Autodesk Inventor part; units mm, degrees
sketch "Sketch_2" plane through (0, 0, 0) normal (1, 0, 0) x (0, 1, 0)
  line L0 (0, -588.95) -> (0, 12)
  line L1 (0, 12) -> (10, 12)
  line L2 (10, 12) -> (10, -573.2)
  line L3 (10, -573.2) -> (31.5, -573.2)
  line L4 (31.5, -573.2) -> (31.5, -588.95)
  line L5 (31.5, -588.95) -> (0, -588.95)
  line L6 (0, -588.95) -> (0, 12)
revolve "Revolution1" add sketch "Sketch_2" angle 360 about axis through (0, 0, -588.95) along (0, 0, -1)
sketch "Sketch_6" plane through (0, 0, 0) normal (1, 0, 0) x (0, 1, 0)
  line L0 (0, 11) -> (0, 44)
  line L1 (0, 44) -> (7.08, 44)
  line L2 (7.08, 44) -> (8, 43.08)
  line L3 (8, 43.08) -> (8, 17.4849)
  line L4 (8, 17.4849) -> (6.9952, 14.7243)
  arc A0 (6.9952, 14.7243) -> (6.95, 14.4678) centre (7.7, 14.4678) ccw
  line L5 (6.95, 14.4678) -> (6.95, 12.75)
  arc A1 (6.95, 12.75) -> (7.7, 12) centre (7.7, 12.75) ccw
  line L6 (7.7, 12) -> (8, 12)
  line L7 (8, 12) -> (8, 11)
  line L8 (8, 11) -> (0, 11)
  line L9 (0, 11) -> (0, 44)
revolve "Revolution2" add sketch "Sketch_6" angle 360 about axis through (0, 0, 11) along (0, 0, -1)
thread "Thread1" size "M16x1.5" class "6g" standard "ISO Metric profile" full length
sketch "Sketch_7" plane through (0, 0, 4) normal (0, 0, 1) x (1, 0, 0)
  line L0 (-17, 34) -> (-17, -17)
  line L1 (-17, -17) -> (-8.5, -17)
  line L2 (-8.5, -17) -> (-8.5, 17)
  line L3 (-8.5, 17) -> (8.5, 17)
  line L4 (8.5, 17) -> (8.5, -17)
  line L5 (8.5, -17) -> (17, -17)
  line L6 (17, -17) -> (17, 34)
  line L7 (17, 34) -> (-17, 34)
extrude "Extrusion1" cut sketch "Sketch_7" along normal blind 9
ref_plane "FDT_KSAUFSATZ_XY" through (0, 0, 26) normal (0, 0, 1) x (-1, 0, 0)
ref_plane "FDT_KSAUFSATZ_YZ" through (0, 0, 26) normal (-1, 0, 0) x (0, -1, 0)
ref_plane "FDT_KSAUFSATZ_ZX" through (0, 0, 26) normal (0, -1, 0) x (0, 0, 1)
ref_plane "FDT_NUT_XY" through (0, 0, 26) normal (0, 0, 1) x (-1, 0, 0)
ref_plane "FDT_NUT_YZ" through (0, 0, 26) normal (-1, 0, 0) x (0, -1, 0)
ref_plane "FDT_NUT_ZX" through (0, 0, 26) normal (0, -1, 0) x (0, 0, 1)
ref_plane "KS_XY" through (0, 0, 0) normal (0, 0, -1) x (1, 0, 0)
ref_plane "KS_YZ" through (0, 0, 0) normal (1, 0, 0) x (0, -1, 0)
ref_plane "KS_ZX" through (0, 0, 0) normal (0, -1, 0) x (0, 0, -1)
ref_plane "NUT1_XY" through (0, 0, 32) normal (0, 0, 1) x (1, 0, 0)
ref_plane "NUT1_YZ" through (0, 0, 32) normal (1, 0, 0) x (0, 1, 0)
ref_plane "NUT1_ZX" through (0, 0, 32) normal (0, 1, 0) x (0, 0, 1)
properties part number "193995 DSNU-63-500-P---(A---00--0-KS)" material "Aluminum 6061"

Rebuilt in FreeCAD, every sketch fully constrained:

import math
import FreeCAD as App
import Part
import Sketcher
Q = App.Units.Quantity

doc = App.newDocument("Part")
body = doc.addObject("PartDesign::Body", "Body")

sketch1 = body.newObject("Sketcher::SketchObject", "Sketch")
sketch1.AttachmentSupport = (doc.getObject("YZ_Plane"), [""])
sketch1.MapMode = "FlatFace"
sketch1.addGeometry([
    Part.LineSegment(App.Vector(0, 12, 0), App.Vector(0, -589, 0)),
    Part.LineSegment(App.Vector(0, -589, 0), App.Vector(32, -589, 0)),
    Part.LineSegment(App.Vector(32, -589, 0), App.Vector(32, -573, 0)),
    Part.LineSegment(App.Vector(32, -573, 0), App.Vector(10, -573, 0)),
    Part.LineSegment(App.Vector(10, -573, 0), App.Vector(10, 12, 0)),
    Part.LineSegment(App.Vector(10, 12, 0), App.Vector(0, 12, 0)),
], False)
sketch1.addConstraint([
    Sketcher.Constraint("Coincident", 0, 2, 1, 1),
    Sketcher.Constraint("Coincident", 1, 2, 2, 1),
    Sketcher.Constraint("Coincident", 2, 2, 3, 1),
    Sketcher.Constraint("Coincident", 3, 2, 4, 1),
    Sketcher.Constraint("Coincident", 4, 2, 5, 1),
    Sketcher.Constraint("Coincident", 5, 2, 0, 1),
    Sketcher.Constraint("Vertical", 0),
    Sketcher.Constraint("Horizontal", 1),
    Sketcher.Constraint("Vertical", 2),
    Sketcher.Constraint("Horizontal", 3),
    Sketcher.Constraint("Vertical", 4),
    Sketcher.Constraint("Horizontal", 5),
    Sketcher.Constraint("PointOnObject", 0, 2, -2),
    Sketcher.Constraint("DistanceX", 5, 2, 5, 1, 10.0),
    Sketcher.Constraint("DistanceX", 1, 1, 1, 2, 31.5),
    Sketcher.Constraint("DistanceY", 4, 1, 4, 2, 585.2),
    Sketcher.Constraint("DistanceY", -1, 1, 4, 2, 12.0),
    Sketcher.Constraint("DistanceY", 0, 2, 0, 1, 600.95),
])
revolution = body.newObject("PartDesign::Revolution", "Revolution")
revolution.Profile = sketch1
revolution.ReferenceAxis = (sketch1, ["V_Axis"])
revolution.Angle = 360

sketch2 = body.newObject("Sketcher::SketchObject", "Sketch001")
sketch2.AttachmentSupport = (doc.getObject("YZ_Plane"), [""])
sketch2.MapMode = "FlatFace"
sketch2.addGeometry([
    Part.LineSegment(App.Vector(0, 44, 0), App.Vector(0, 11, 0)),
    Part.LineSegment(App.Vector(0, 11, 0), App.Vector(8, 11, 0)),
    Part.LineSegment(App.Vector(8, 11, 0), App.Vector(8, 12, 0)),
    Part.LineSegment(App.Vector(8, 12, 0), App.Vector(7.7, 12, 0)),
    Part.ArcOfCircle(Part.Circle(App.Vector(7.7, 12.75, 0), App.Vector(0, 0, 1), 0.75), math.radians(180), math.radians(270)),
    Part.LineSegment(App.Vector(6.95, 12.75, 0), App.Vector(6.95, 14.47, 0)),
    Part.ArcOfCircle(Part.Circle(App.Vector(7.7, 14.47, 0), App.Vector(0, 0, 1), 0.75), math.radians(160), math.radians(180)),
    Part.LineSegment(App.Vector(7, 14.72, 0), App.Vector(8, 17.48, 0)),
    Part.LineSegment(App.Vector(8, 17.48, 0), App.Vector(8, 43.08, 0)),
    Part.LineSegment(App.Vector(8, 43.08, 0), App.Vector(7.08, 44, 0)),
    Part.LineSegment(App.Vector(7.08, 44, 0), App.Vector(0, 44, 0)),
], False)
sketch2.addConstraint([
    Sketcher.Constraint("Coincident", 0, 2, 1, 1),
    Sketcher.Constraint("Coincident", 1, 2, 2, 1),
    Sketcher.Constraint("Coincident", 2, 2, 3, 1),
    Sketcher.Constraint("Tangent", 3, 2, 4, 2),
    Sketcher.Constraint("Tangent", 4, 1, 5, 1),
    Sketcher.Constraint("Tangent", 5, 2, 6, 2),
    Sketcher.Constraint("Tangent", 6, 1, 7, 1),
    Sketcher.Constraint("Coincident", 7, 2, 8, 1),
    Sketcher.Constraint("Coincident", 8, 2, 9, 1),
    Sketcher.Constraint("Coincident", 9, 2, 10, 1),
    Sketcher.Constraint("Coincident", 10, 2, 0, 1),
    Sketcher.Constraint("Vertical", 0),
    Sketcher.Constraint("Horizontal", 1),
    Sketcher.Constraint("Vertical", 2),
    Sketcher.Constraint("Horizontal", 3),
    Sketcher.Constraint("Vertical", 5),
    Sketcher.Constraint("Vertical", 8),
    Sketcher.Constraint("Horizontal", 10),
    Sketcher.Constraint("Equal", 4, 6),
    Sketcher.Constraint("PointOnObject", 0, 2, -2),
    Sketcher.Constraint("Vertical", 2, 2, 7, 2),
    Sketcher.Constraint("DistanceX", 1, 1, 1, 2, 8.0),
    Sketcher.Constraint("DistanceY", 0, 2, 0, 1, 33.0),
    Sketcher.Constraint("DistanceY", 2, 1, 2, 2, 1.0),
    Sketcher.Constraint("Angle", 7, Q("69.9996 deg")),
    Sketcher.Constraint("Angle", 9, Q("135 deg")),
    Sketcher.Constraint("Radius", 4, 0.75),
    Sketcher.Constraint("DistanceX", 3, 2, 3, 1, 0.3),
    Sketcher.Constraint("DistanceY", -1, 1, 0, 2, 11.0),
    Sketcher.Constraint("DistanceX", 10, 2, 10, 1, 7.08),
    Sketcher.Constraint("DistanceY", 8, 1, 8, 2, 25.595),
])
revolution2 = body.newObject("PartDesign::Revolution", "Revolution001")
revolution2.Profile = sketch2
revolution2.ReferenceAxis = (sketch2, ["V_Axis"])
revolution2.Angle = 360

sketch3 = body.newObject("Sketcher::SketchObject", "Sketch002")
sketch3.AttachmentSupport = (doc.getObject("XY_Plane"), [""])
sketch3.MapMode = "FlatFace"
sketch3.AttachmentOffset = App.Placement(App.Vector(0, 0, 4), App.Rotation())
sketch3.addGeometry([
    Part.LineSegment(App.Vector(17, 34, 0), App.Vector(-17, 34, 0)),
    Part.LineSegment(App.Vector(-17, 34, 0), App.Vector(-17, -17, 0)),
    Part.LineSegment(App.Vector(-17, -17, 0), App.Vector(-8, -17, 0)),
    Part.LineSegment(App.Vector(-8, -17, 0), App.Vector(-8, 17, 0)),
    Part.LineSegment(App.Vector(-8, 17, 0), App.Vector(8, 17, 0)),
    Part.LineSegment(App.Vector(8, 17, 0), App.Vector(8, -17, 0)),
    Part.LineSegment(App.Vector(8, -17, 0), App.Vector(17, -17, 0)),
    Part.LineSegment(App.Vector(17, -17, 0), App.Vector(17, 34, 0)),
], False)
sketch3.addConstraint([
    Sketcher.Constraint("Coincident", 0, 2, 1, 1),
    Sketcher.Constraint("Coincident", 1, 2, 2, 1),
    Sketcher.Constraint("Coincident", 2, 2, 3, 1),
    Sketcher.Constraint("Coincident", 3, 2, 4, 1),
    Sketcher.Constraint("Coincident", 4, 2, 5, 1),
    Sketcher.Constraint("Coincident", 5, 2, 6, 1),
    Sketcher.Constraint("Coincident", 6, 2, 7, 1),
    Sketcher.Constraint("Coincident", 7, 2, 0, 1),
    Sketcher.Constraint("Horizontal", 0),
    Sketcher.Constraint("Vertical", 1),
    Sketcher.Constraint("Horizontal", 2),
    Sketcher.Constraint("Vertical", 3),
    Sketcher.Constraint("Horizontal", 4),
    Sketcher.Constraint("Vertical", 5),
    Sketcher.Constraint("Horizontal", 6),
    Sketcher.Constraint("Vertical", 7),
    Sketcher.Constraint("Symmetric", 2, 2, 4, 2, -1, 1),
    Sketcher.Constraint("Symmetric", 1, 2, 6, 2, -2),
    Sketcher.Constraint("Equal", 0, 3),
    Sketcher.Constraint("DistanceX", 0, 2, 0, 1, 34.0),
    Sketcher.Constraint("DistanceX", 4, 1, 4, 2, 17.0),
    Sketcher.Constraint("DistanceY", 1, 2, 1, 1, 51.0),
])
pocket1 = body.newObject("PartDesign::Pocket", "Pocket")
pocket1.Profile = sketch3
pocket1.Length = 9
pocket1.Reversed = True

doc.recompute()
